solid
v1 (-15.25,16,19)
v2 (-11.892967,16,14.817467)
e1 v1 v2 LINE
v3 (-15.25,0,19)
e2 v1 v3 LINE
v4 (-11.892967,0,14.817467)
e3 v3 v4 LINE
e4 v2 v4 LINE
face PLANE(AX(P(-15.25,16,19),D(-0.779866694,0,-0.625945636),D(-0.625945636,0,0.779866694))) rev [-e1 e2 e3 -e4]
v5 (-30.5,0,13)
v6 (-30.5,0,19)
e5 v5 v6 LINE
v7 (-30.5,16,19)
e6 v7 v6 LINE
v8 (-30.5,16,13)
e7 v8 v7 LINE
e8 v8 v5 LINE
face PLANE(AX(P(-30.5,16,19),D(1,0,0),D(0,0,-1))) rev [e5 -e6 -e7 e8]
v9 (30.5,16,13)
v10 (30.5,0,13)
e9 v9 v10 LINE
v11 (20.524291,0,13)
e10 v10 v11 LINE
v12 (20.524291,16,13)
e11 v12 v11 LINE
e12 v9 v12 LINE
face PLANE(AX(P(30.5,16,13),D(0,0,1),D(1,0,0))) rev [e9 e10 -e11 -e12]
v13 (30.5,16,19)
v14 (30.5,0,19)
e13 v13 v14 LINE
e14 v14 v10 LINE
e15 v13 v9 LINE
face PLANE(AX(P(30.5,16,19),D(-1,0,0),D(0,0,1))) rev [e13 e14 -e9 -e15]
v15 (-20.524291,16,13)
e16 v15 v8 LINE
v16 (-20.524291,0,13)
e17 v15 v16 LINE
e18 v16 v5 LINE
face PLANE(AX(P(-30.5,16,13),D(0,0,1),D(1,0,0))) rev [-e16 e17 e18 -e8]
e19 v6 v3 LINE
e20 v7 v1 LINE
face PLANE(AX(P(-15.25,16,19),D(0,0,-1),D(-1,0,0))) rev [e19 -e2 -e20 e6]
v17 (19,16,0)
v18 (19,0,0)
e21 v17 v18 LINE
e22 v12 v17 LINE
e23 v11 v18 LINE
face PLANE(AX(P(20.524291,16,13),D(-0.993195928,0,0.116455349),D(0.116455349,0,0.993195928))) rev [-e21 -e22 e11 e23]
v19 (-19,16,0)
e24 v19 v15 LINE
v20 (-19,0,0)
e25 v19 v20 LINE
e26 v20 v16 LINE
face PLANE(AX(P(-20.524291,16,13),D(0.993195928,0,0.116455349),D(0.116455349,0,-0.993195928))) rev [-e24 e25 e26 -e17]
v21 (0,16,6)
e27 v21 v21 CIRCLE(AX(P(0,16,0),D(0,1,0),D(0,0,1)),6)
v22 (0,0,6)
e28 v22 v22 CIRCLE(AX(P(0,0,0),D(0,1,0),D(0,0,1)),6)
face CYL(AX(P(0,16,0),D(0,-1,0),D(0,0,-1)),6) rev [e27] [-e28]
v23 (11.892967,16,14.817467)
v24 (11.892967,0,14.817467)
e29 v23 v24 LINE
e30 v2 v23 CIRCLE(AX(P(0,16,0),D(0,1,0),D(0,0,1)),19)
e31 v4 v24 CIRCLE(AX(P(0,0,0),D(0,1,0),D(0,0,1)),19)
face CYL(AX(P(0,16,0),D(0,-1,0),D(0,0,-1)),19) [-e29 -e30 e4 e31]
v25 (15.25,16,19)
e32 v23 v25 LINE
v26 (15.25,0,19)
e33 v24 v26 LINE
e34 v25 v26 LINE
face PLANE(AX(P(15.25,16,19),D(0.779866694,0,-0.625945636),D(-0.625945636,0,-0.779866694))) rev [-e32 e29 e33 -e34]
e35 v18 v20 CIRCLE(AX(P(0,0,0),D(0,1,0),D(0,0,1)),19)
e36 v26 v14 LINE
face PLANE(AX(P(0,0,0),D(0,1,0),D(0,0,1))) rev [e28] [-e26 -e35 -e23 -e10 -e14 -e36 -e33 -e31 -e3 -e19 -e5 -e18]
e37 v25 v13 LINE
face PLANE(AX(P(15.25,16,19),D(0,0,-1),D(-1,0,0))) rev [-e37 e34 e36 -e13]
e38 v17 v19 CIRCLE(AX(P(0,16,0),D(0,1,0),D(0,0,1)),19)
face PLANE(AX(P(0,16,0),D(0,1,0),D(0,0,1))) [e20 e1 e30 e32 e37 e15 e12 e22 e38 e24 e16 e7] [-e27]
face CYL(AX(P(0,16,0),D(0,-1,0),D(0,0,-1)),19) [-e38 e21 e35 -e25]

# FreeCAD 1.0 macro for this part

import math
import FreeCAD as App
import Part
import Sketcher

V = App.Vector

doc = App.newDocument("Part")
body = doc.addObject("PartDesign::Body", "Body")

# Sketch on XZ plane
sketch1 = doc.addObject("Sketcher::SketchObject", "Sketch")
body.addObject(sketch1)
sketch1.AttachmentSupport = (doc.XZ_Plane, [""])
sketch1.MapMode = "FlatFace"
sketch1.addGeometry(Part.LineSegment(V(-30.5, 19, 0), V(-15.25, 19, 0)), False)
sketch1.addGeometry(Part.LineSegment(V(-15.25, 19, 0), V(-11.892967, 14.817467, 0)), False)
sketch1.addGeometry(Part.ArcOfCircle(Part.Circle(V(0, 0, 0), V(0, 0, 1), 19), math.radians(51.248372), math.radians(128.751628)), False)
sketch1.addGeometry(Part.LineSegment(V(11.892967, 14.817467, 0), V(15.25, 19, 0)), False)
sketch1.addGeometry(Part.LineSegment(V(15.25, 19, 0), V(30.5, 19, 0)), False)
sketch1.addGeometry(Part.LineSegment(V(30.5, 19, 0), V(30.5, 13, 0)), False)
sketch1.addGeometry(Part.LineSegment(V(30.5, 13, 0), V(20.524291, 13, 0)), False)
sketch1.addGeometry(Part.LineSegment(V(20.524291, 13, 0), V(19, 0, 0)), False)
sketch1.addGeometry(Part.ArcOfCircle(Part.Circle(V(0, 0, 0), V(0, 0, 1), 19), math.radians(180), math.radians(360)), False)
sketch1.addGeometry(Part.LineSegment(V(-19, 0, 0), V(-20.524291, 13, 0)), False)
sketch1.addGeometry(Part.LineSegment(V(-20.524291, 13, 0), V(-30.5, 13, 0)), False)
sketch1.addGeometry(Part.LineSegment(V(-30.5, 13, 0), V(-30.5, 19, 0)), False)
sketch1.addGeometry(Part.Circle(V(0, 0, 0), V(0, 0, 1), 6), False)
sketch1.addConstraint(Sketcher.Constraint("Coincident", 0, 2, 1, 1))
sketch1.addConstraint(Sketcher.Constraint("Coincident", 1, 2, 2, 2))
sketch1.addConstraint(Sketcher.Constraint("Coincident", 2, 1, 3, 1))
sketch1.addConstraint(Sketcher.Constraint("Coincident", 3, 2, 4, 1))
sketch1.addConstraint(Sketcher.Constraint("Coincident", 4, 2, 5, 1))
sketch1.addConstraint(Sketcher.Constraint("Coincident", 5, 2, 6, 1))
sketch1.addConstraint(Sketcher.Constraint("Coincident", 6, 2, 7, 1))
sketch1.addConstraint(Sketcher.Constraint("Coincident", 7, 2, 8, 2))
sketch1.addConstraint(Sketcher.Constraint("Coincident", 8, 1, 9, 1))
sketch1.addConstraint(Sketcher.Constraint("Coincident", 9, 2, 10, 1))
sketch1.addConstraint(Sketcher.Constraint("Coincident", 10, 2, 11, 1))
sketch1.addConstraint(Sketcher.Constraint("Coincident", 11, 2, 0, 1))
sketch1.addConstraint(Sketcher.Constraint("Horizontal", 0))
sketch1.addConstraint(Sketcher.Constraint("Horizontal", 4))
sketch1.addConstraint(Sketcher.Constraint("Vertical", 5))
sketch1.addConstraint(Sketcher.Constraint("Horizontal", 6))
sketch1.addConstraint(Sketcher.Constraint("Horizontal", 10))
sketch1.addConstraint(Sketcher.Constraint("Vertical", 11))
sketch1.addConstraint(Sketcher.Constraint("Coincident", 2, 3, -1, 1))
sketch1.addConstraint(Sketcher.Constraint("Coincident", 8, 3, -1, 1))
sketch1.addConstraint(Sketcher.Constraint("Coincident", 12, 3, -1, 1))
sketch1.addConstraint(Sketcher.Constraint("Equal", 2, 8))
sketch1.addConstraint(Sketcher.Constraint("Symmetric", 0, 2, 3, 2, -2))
sketch1.addConstraint(Sketcher.Constraint("Symmetric", 6, 2, 9, 2, -2))
sketch1.addConstraint(Sketcher.Constraint("PointOnObject", 7, 2, -1))
sketch1.addConstraint(Sketcher.Constraint("PointOnObject", 8, 1, -1))
sketch1.addConstraint(Sketcher.Constraint("Horizontal", 1, 2, 2, 1))
sketch1.addConstraint(Sketcher.Constraint("Equal", 0, 4))
sketch1.addConstraint(Sketcher.Constraint("Diameter", 12, 12.0))
sketch1.addConstraint(Sketcher.Constraint("Radius", 2, 19.0))
sketch1.addConstraint(Sketcher.Constraint("DistanceY", 5, 2, 5, 1, 6.0))
sketch1.addConstraint(Sketcher.Constraint("DistanceY", -1, 1, 0, 2, 19.0))
sketch1.addConstraint(Sketcher.Constraint("DistanceX", 0, 1, 0, 2, 15.25))
sketch1.addConstraint(Sketcher.Constraint("DistanceX", -1, 1, 4, 2, 30.5))
sketch1.addConstraint(Sketcher.Constraint("DistanceX", 6, 2, 6, 1, 9.975709))
sketch1.addConstraint(Sketcher.Constraint("DistanceX", 1, 2, -1, 1, 11.892967))
pad1 = doc.addObject("PartDesign::Pad", "Pad")
body.addObject(pad1)
pad1.Profile = sketch1
pad1.Length = 16
pad1.Reversed = True

doc.recompute()
